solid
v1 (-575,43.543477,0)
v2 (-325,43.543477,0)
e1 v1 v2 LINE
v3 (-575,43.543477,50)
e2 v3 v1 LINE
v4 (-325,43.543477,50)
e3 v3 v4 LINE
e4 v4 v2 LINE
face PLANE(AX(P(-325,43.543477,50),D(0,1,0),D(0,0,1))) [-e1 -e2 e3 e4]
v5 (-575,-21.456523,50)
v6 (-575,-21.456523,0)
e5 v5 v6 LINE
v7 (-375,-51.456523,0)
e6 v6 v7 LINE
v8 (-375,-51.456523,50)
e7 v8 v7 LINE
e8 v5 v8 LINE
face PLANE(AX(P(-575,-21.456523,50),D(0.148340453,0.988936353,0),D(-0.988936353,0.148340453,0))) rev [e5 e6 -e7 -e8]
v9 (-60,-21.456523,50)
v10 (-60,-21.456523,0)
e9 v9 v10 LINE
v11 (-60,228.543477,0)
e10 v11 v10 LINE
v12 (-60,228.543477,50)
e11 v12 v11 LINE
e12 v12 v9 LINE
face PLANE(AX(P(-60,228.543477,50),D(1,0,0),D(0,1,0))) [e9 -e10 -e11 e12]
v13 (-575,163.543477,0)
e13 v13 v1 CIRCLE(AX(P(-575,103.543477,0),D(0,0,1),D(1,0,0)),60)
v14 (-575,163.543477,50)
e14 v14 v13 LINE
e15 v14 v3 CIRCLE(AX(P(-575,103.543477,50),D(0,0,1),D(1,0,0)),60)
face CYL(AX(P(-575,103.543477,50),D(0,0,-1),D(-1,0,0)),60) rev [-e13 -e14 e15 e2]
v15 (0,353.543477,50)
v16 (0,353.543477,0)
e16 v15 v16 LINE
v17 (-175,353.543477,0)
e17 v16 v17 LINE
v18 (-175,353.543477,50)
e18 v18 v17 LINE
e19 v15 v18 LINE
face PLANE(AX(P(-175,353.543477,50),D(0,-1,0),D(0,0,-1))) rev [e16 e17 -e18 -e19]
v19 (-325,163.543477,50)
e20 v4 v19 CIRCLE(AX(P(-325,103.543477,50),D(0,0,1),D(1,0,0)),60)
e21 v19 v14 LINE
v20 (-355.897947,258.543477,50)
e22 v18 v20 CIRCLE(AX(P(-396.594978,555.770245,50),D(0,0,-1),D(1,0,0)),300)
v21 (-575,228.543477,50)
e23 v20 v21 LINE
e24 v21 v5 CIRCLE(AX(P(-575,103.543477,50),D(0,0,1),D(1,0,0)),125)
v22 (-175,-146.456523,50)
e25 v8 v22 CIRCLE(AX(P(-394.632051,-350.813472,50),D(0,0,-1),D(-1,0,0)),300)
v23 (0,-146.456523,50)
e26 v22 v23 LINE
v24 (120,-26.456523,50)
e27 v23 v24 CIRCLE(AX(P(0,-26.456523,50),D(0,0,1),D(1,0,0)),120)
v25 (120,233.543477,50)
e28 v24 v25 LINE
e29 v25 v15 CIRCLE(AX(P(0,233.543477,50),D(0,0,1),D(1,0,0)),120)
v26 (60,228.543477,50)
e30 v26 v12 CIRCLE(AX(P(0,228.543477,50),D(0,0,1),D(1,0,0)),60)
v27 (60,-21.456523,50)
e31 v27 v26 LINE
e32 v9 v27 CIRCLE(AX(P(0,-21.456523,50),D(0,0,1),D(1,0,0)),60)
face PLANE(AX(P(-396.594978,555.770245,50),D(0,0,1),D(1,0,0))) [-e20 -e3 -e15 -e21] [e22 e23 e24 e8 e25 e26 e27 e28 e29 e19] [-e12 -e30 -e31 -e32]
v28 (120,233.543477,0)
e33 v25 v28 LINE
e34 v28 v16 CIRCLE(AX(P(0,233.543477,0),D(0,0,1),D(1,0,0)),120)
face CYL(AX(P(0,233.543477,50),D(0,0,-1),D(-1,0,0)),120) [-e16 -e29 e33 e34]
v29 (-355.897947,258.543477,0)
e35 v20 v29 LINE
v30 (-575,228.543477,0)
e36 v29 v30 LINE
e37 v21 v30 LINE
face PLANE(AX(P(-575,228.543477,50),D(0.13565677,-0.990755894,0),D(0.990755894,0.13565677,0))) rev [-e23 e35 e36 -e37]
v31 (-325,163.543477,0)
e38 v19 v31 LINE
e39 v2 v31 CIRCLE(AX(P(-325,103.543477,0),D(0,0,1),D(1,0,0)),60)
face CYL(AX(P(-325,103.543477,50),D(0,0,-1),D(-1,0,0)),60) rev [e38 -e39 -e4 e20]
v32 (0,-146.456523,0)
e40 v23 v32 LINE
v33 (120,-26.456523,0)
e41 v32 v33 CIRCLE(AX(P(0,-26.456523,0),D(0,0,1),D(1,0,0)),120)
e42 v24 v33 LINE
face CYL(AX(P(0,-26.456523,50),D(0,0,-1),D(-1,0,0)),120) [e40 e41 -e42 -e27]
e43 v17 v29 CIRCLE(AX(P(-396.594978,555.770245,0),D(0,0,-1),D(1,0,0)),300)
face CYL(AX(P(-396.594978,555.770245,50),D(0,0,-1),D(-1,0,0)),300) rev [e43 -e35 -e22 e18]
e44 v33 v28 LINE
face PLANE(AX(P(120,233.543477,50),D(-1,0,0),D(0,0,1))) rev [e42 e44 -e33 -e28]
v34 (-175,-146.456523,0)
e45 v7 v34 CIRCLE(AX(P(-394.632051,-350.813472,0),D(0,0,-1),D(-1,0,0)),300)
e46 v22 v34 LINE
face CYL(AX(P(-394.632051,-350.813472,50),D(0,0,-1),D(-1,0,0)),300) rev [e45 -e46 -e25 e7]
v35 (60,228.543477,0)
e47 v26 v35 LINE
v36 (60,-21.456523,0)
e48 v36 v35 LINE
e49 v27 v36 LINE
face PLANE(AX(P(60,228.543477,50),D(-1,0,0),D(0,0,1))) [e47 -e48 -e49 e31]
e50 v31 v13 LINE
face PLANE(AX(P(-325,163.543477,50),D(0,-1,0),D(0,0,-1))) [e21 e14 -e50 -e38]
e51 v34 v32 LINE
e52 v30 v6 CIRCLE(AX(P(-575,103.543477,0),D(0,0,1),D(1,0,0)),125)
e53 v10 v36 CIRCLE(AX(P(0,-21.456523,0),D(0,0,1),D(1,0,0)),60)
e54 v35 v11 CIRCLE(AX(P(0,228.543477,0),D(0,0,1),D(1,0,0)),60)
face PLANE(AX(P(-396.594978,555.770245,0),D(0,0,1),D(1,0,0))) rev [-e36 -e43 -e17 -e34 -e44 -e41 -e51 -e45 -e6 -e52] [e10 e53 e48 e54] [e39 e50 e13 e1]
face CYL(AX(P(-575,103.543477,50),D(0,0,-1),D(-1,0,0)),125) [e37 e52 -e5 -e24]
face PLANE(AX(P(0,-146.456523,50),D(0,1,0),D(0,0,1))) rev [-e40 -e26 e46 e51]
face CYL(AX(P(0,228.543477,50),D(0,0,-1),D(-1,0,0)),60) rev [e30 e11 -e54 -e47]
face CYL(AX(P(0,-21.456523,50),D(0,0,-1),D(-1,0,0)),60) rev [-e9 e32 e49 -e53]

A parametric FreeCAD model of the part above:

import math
import FreeCAD as App
import Part
import Sketcher

doc = App.newDocument("Part")
body = doc.addObject("PartDesign::Body", "Body")

# Sketch on XY plane
sketch1 = body.newObject("Sketcher::SketchObject", "Sketch")
sketch1.AttachmentSupport = (doc.getObject("XY_Plane"), [""])
sketch1.MapMode = "FlatFace"
sketch1.addGeometry([
    Part.LineSegment(App.Vector(0, 353.543477, 0), App.Vector(-175, 353.543477, 0)),  # 0
    Part.ArcOfCircle(Part.Circle(App.Vector(-396.594978, 555.770245, 0), App.Vector(0, 0, 1), 300), math.radians(-82.203401), math.radians(-42.383463)),  # 1
    Part.LineSegment(App.Vector(-355.897947, 258.543477, 0), App.Vector(-575, 228.543477, 0)),  # 2
    Part.ArcOfCircle(Part.Circle(App.Vector(-575, 103.543477, 0), App.Vector(0, 0, 1), 125), math.radians(90), math.radians(270)),  # 3
    Part.LineSegment(App.Vector(-575, -21.456523, 0), App.Vector(-375, -51.456523, 0)),  # 4
    Part.ArcOfCircle(Part.Circle(App.Vector(-394.632051, -350.813472, 0), App.Vector(0, 0, 1), 300), math.radians(42.936691), math.radians(86.247873)),  # 5
    Part.LineSegment(App.Vector(-175, -146.456523, 0), App.Vector(0, -146.456523, 0)),  # 6
    Part.ArcOfCircle(Part.Circle(App.Vector(0, -26.456523, 0), App.Vector(0, 0, 1), 120), math.radians(-90), math.radians(0)),  # 7
    Part.LineSegment(App.Vector(120, -26.456523, 0), App.Vector(120, 233.543477, 0)),  # 8
    Part.ArcOfCircle(Part.Circle(App.Vector(0, 233.543477, 0), App.Vector(0, 0, 1), 120), math.radians(0), math.radians(90)),  # 9
    Part.LineSegment(App.Vector(60, 228.543477, 0), App.Vector(60, -21.456523, 0)),  # 10
    Part.ArcOfCircle(Part.Circle(App.Vector(0, -21.456523, 0), App.Vector(0, 0, 1), 60), math.radians(180), math.radians(360)),  # 11
    Part.LineSegment(App.Vector(-60, -21.456523, 0), App.Vector(-60, 228.543477, 0)),  # 12
    Part.ArcOfCircle(Part.Circle(App.Vector(0, 228.543477, 0), App.Vector(0, 0, 1), 60), math.radians(0), math.radians(180)),  # 13
    Part.LineSegment(App.Vector(-325, 43.543477, 0), App.Vector(-575, 43.543477, 0)),  # 14
    Part.ArcOfCircle(Part.Circle(App.Vector(-575, 103.543477, 0), App.Vector(0, 0, 1), 60), math.radians(90), math.radians(270)),  # 15
    Part.LineSegment(App.Vector(-575, 163.543477, 0), App.Vector(-325, 163.543477, 0)),  # 16
    Part.ArcOfCircle(Part.Circle(App.Vector(-325, 103.543477, 0), App.Vector(0, 0, 1), 60), math.radians(-90), math.radians(90)),  # 17
], False)
sketch1.addConstraint([
    Sketcher.Constraint("Coincident", 0, 2, 1, 2),
    Sketcher.Constraint("Tangent", 1, 1, 2, 1),
    Sketcher.Constraint("Coincident", 2, 2, 3, 1),
    Sketcher.Constraint("Coincident", 3, 2, 4, 1),
    Sketcher.Constraint("Coincident", 4, 2, 5, 2),
    Sketcher.Constraint("Coincident", 5, 1, 6, 1),
    Sketcher.Constraint("Tangent", 6, 2, 7, 1),
    Sketcher.Constraint("Tangent", 7, 2, 8, 1),
    Sketcher.Constraint("Tangent", 8, 2, 9, 1),
    Sketcher.Constraint("Tangent", 9, 2, 0, 1),
    Sketcher.Constraint("Tangent", 10, 2, 11, 2),
    Sketcher.Constraint("Tangent", 11, 1, 12, 1),
    Sketcher.Constraint("Tangent", 12, 2, 13, 2),
    Sketcher.Constraint("Tangent", 13, 1, 10, 1),
    Sketcher.Constraint("Tangent", 14, 2, 15, 2),
    Sketcher.Constraint("Tangent", 15, 1, 16, 1),
    Sketcher.Constraint("Tangent", 16, 2, 17, 2),
    Sketcher.Constraint("Tangent", 17, 1, 14, 1),
    Sketcher.Constraint("Horizontal", 0),
    Sketcher.Constraint("Horizontal", 6),
    Sketcher.Constraint("Vertical", 8),
    Sketcher.Constraint("Vertical", 10),
    Sketcher.Constraint("Vertical", 12),
    Sketcher.Constraint("Horizontal", 14),
    Sketcher.Constraint("Horizontal", 16),
    Sketcher.Constraint("Coincident", 15, 3, 3, 3),
    Sketcher.Constraint("Equal", 1, 5),
    Sketcher.Constraint("Equal", 7, 9),
    Sketcher.Constraint("Equal", 13, 15),
    Sketcher.Constraint("PointOnObject", 7, 3, -2),
    Sketcher.Constraint("PointOnObject", 11, 3, -2),
    Sketcher.Constraint("Horizontal", 13, 3, 2, 2),
    Sketcher.Constraint("Horizontal", 11, 3, 3, 2),
    Sketcher.Constraint("Vertical", 15, 3, 2, 2),
    Sketcher.Constraint("Vertical", 2, 2, 3, 2),
    Sketcher.Constraint("Vertical", 0, 2, 5, 1),
    Sketcher.Constraint("Equal", 16, 10),
    Sketcher.Constraint("Radius", 1, 300.0),
    Sketcher.Constraint("Radius", 3, 125.0),
    Sketcher.Constraint("Radius", 7, 120.0),
    Sketcher.Constraint("Radius", 11, 60.0),
    Sketcher.Constraint("DistanceX", 0, 2, 0, 1, 175.0),
    Sketcher.Constraint("DistanceY", 8, 1, 8, 2, 260.0),
    Sketcher.Constraint("DistanceX", 3, 3, -1, 1, 575.0),
    Sketcher.Constraint("DistanceX", 4, 2, -1, 1, 375.0),
    Sketcher.Constraint("DistanceY", 7, 3, 3, 3, 130.0),
    Sketcher.Constraint("DistanceY", 17, 3, 1, 1, 155.0),
    Sketcher.Constraint("DistanceY", 4, 2, 17, 3, 155.0),
    Sketcher.Constraint("DistanceY", 5, 3, -1, 1, 350.813472),
])
pad1 = body.newObject("PartDesign::Pad", "Pad")
pad1.Profile = sketch1
pad1.Length = 50

doc.recompute()
